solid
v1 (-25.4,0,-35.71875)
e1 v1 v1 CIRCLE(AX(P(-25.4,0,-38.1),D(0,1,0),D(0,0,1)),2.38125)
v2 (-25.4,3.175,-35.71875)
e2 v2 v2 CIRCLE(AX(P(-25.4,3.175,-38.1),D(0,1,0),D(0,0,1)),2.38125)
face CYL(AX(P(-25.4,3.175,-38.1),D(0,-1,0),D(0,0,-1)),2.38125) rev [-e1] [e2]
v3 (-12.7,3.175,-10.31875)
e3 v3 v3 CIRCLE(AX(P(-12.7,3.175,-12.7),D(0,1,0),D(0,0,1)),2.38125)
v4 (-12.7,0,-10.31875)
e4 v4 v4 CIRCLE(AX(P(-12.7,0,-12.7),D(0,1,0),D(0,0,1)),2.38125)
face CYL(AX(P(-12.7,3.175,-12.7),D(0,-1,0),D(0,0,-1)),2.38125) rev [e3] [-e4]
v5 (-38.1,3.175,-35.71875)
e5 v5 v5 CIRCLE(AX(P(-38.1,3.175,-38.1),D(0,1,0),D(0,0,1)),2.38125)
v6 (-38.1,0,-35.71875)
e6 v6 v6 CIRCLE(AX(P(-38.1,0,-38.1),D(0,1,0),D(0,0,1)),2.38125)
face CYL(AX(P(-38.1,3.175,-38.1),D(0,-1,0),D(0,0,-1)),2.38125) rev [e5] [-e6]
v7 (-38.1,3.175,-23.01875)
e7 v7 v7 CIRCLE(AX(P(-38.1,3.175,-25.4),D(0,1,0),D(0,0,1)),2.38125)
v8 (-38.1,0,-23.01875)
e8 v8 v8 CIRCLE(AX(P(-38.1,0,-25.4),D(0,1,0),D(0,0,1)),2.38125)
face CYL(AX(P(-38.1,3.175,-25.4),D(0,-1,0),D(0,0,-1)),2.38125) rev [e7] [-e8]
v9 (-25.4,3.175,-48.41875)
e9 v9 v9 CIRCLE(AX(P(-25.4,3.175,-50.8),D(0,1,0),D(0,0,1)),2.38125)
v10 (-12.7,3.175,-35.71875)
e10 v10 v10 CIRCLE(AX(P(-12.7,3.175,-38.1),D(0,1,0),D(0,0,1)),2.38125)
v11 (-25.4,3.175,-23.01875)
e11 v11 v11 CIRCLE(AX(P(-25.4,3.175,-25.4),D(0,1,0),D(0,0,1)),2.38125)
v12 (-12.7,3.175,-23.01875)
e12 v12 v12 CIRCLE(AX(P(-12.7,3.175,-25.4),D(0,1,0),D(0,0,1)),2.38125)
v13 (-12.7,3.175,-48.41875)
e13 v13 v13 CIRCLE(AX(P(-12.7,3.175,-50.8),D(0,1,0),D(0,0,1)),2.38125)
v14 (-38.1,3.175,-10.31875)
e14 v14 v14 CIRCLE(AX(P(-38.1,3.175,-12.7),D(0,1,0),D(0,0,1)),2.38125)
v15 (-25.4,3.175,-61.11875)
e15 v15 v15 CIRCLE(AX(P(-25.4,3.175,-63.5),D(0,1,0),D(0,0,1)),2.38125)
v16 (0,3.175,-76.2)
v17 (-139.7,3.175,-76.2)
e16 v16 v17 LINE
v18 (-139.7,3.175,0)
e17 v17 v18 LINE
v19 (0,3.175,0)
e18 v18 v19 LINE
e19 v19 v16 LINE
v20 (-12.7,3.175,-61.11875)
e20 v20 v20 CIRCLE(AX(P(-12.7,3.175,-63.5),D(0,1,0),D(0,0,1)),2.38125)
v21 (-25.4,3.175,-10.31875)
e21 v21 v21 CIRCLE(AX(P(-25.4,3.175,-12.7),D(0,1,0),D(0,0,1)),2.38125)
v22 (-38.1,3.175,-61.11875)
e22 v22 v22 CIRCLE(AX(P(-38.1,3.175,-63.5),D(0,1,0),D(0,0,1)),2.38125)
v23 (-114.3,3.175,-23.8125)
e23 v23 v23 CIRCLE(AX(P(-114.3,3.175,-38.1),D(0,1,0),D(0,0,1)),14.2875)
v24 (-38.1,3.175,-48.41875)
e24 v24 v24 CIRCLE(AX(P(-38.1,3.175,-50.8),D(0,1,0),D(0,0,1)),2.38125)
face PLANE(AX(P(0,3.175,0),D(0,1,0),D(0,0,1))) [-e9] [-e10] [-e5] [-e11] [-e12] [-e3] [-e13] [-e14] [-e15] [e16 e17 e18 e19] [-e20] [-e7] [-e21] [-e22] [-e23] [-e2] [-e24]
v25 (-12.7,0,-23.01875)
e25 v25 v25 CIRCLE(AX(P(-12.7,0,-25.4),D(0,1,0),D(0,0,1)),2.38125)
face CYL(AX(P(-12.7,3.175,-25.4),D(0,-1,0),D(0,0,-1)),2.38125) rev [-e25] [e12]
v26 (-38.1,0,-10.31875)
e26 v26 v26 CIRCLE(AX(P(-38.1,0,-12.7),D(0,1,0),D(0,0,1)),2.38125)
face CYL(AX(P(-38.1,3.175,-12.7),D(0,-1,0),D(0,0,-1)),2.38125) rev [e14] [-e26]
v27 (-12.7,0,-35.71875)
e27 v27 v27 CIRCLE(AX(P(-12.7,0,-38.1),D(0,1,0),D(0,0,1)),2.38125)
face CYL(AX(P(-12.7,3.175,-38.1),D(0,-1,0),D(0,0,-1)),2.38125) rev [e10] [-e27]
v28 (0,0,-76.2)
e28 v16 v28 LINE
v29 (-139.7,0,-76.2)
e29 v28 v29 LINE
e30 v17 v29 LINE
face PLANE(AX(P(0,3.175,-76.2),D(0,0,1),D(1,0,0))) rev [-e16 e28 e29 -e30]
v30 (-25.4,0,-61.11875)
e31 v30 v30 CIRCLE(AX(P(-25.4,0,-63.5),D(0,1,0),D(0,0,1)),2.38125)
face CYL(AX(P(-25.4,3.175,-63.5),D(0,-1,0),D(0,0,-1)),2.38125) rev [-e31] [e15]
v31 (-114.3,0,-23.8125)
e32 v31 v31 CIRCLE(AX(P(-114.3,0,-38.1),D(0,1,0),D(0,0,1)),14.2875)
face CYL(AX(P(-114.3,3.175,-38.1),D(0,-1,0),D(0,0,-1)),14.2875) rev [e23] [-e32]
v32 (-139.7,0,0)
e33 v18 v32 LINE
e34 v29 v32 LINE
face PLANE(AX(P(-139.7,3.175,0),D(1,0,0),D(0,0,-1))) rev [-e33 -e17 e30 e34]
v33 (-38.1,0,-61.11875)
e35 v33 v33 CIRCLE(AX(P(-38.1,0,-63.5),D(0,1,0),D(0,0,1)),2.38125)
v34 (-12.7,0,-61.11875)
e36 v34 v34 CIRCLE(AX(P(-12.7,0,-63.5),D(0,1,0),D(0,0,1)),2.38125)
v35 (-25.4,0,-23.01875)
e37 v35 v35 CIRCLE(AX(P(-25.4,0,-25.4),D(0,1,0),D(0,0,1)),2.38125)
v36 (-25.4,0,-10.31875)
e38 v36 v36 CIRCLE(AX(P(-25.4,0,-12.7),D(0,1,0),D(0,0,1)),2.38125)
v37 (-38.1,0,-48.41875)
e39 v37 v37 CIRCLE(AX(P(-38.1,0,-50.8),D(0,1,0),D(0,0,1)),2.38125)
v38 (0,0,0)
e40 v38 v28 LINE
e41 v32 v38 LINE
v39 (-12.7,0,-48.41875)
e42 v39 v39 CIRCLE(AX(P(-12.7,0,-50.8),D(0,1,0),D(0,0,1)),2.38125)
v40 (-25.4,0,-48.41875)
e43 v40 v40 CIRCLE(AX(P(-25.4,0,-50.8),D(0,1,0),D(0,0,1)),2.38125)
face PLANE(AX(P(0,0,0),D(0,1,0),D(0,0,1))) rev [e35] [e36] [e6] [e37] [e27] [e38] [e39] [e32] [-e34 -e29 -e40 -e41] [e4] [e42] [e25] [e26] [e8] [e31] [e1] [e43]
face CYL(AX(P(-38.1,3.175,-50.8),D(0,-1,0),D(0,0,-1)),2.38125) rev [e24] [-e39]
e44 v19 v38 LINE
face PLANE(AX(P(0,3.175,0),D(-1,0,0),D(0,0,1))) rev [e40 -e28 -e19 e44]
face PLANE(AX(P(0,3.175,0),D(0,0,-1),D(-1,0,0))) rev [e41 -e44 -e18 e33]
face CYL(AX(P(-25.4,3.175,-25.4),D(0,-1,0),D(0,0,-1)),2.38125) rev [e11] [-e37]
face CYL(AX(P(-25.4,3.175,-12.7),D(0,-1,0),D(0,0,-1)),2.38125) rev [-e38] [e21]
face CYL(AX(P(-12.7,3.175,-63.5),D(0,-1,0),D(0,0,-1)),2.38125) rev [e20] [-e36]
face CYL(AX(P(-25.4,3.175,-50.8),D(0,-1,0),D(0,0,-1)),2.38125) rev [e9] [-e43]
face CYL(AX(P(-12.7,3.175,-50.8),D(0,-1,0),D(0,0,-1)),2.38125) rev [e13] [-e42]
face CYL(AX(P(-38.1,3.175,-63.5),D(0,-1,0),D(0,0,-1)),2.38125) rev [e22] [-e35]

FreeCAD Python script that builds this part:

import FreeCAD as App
import Part
import Sketcher
Q = App.Units.Quantity

doc = App.newDocument("Part")
body = doc.addObject("PartDesign::Body", "Body")

sketch1 = doc.addObject("Sketcher::SketchObject", "Sketch")
body.addObject(sketch1)
sketch1.AttachmentSupport = (doc.XZ_Plane, [""])
sketch1.MapMode = "FlatFace"
sketch1.addGeometry([
    Part.LineSegment(App.Vector(-139.7, -76.2, 0), App.Vector(-139.7, 0, 0)),
    Part.LineSegment(App.Vector(-139.7, 0, 0), App.Vector(0, 0, 0)),
    Part.LineSegment(App.Vector(0, 0, 0), App.Vector(0, -76.2, 0)),
    Part.LineSegment(App.Vector(0, -76.2, 0), App.Vector(-139.7, -76.2, 0)),
    Part.Circle(App.Vector(-38.1, -12.7, 0), App.Vector(0, 0, 1), 2.4),
    Part.Circle(App.Vector(-25.4, -12.7, 0), App.Vector(0, 0, 1), 2.4),
    Part.Circle(App.Vector(-12.7, -12.7, 0), App.Vector(0, 0, 1), 2.4),
    Part.Circle(App.Vector(-38.1, -25.4, 0), App.Vector(0, 0, 1), 2.4),
    Part.Circle(App.Vector(-25.4, -25.4, 0), App.Vector(0, 0, 1), 2.4),
    Part.Circle(App.Vector(-12.7, -25.4, 0), App.Vector(0, 0, 1), 2.4),
    Part.Circle(App.Vector(-114.3, -38.1, 0), App.Vector(0, 0, 1), 14.3),
    Part.Circle(App.Vector(-38.1, -38.1, 0), App.Vector(0, 0, 1), 2.4),
    Part.Circle(App.Vector(-25.4, -38.1, 0), App.Vector(0, 0, 1), 2.4),
    Part.Circle(App.Vector(-12.7, -38.1, 0), App.Vector(0, 0, 1), 2.4),
    Part.Circle(App.Vector(-38.1, -50.8, 0), App.Vector(0, 0, 1), 2.4),
    Part.Circle(App.Vector(-25.4, -50.8, 0), App.Vector(0, 0, 1), 2.4),
    Part.Circle(App.Vector(-12.7, -50.8, 0), App.Vector(0, 0, 1), 2.4),
    Part.Circle(App.Vector(-38.1, -63.5, 0), App.Vector(0, 0, 1), 2.4),
    Part.Circle(App.Vector(-25.4, -63.5, 0), App.Vector(0, 0, 1), 2.4),
    Part.Circle(App.Vector(-12.7, -63.5, 0), App.Vector(0, 0, 1), 2.4),
], False)
sketch1.addConstraint([
    Sketcher.Constraint("Coincident", 0, 2, 1, 1),
    Sketcher.Constraint("Coincident", 1, 2, 2, 1),
    Sketcher.Constraint("Coincident", 2, 2, 3, 1),
    Sketcher.Constraint("Coincident", 3, 2, 0, 1),
    Sketcher.Constraint("Vertical", 0),
    Sketcher.Constraint("Horizontal", 1),
    Sketcher.Constraint("Vertical", 2),
    Sketcher.Constraint("Horizontal", 3),
    Sketcher.Constraint("Coincident", 1, 2, -1, 1),
    Sketcher.Constraint("Equal", 4, 5),
    Sketcher.Constraint("Equal", 5, 6),
    Sketcher.Constraint("Equal", 6, 7),
    Sketcher.Constraint("Equal", 7, 8),
    Sketcher.Constraint("Equal", 8, 9),
    Sketcher.Constraint("Equal", 9, 11),
    Sketcher.Constraint("Equal", 11, 12),
    Sketcher.Constraint("Equal", 12, 13),
    Sketcher.Constraint("Equal", 13, 14),
    Sketcher.Constraint("Equal", 14, 15),
    Sketcher.Constraint("Equal", 15, 16),
    Sketcher.Constraint("Equal", 16, 17),
    Sketcher.Constraint("Equal", 17, 18),
    Sketcher.Constraint("Equal", 18, 19),
    Sketcher.Constraint("Horizontal", 4, 3, 5, 3),
    Sketcher.Constraint("Horizontal", 5, 3, 6, 3),
    Sketcher.Constraint("Horizontal", 7, 3, 8, 3),
    Sketcher.Constraint("Horizontal", 8, 3, 9, 3),
    Sketcher.Constraint("Horizontal", 10, 3, 11, 3),
    Sketcher.Constraint("Horizontal", 11, 3, 12, 3),
    Sketcher.Constraint("Horizontal", 12, 3, 13, 3),
    Sketcher.Constraint("Horizontal", 14, 3, 15, 3),
    Sketcher.Constraint("Horizontal", 15, 3, 16, 3),
    Sketcher.Constraint("Horizontal", 17, 3, 18, 3),
    Sketcher.Constraint("Horizontal", 18, 3, 19, 3),
    Sketcher.Constraint("Vertical", 4, 3, 7, 3),
    Sketcher.Constraint("Vertical", 5, 3, 8, 3),
    Sketcher.Constraint("Vertical", 6, 3, 9, 3),
    Sketcher.Constraint("Vertical", 7, 3, 11, 3),
    Sketcher.Constraint("Vertical", 8, 3, 12, 3),
    Sketcher.Constraint("Vertical", 9, 3, 13, 3),
    Sketcher.Constraint("Vertical", 11, 3, 14, 3),
    Sketcher.Constraint("Vertical", 12, 3, 15, 3),
    Sketcher.Constraint("Vertical", 13, 3, 16, 3),
    Sketcher.Constraint("Vertical", 14, 3, 17, 3),
    Sketcher.Constraint("Vertical", 15, 3, 18, 3),
    Sketcher.Constraint("Vertical", 16, 3, 19, 3),
    Sketcher.Constraint("DistanceY", 0, 1, 0, 2, Q("3 in")),
    Sketcher.Constraint("Diameter", 4, Q("0.1875 in")),
    Sketcher.Constraint("Diameter", 10, Q("1.125 in")),
    Sketcher.Constraint("DistanceX", 1, 1, 1, 2, Q("5.5 in")),
    Sketcher.Constraint("DistanceX", 5, 3, -1, 1, Q("1 in")),
    Sketcher.Constraint("DistanceY", 7, 3, -1, 1, Q("1 in")),
    Sketcher.Constraint("DistanceY", 14, 3, -1, 1, Q("2 in")),
    Sketcher.Constraint("DistanceX", 4, 3, 6, 3, Q("1 in")),
    Sketcher.Constraint("DistanceX", 10, 3, 7, 3, Q("3 in")),
    Sketcher.Constraint("DistanceY", 10, 3, 4, 3, Q("1 in")),
    Sketcher.Constraint("DistanceY", 17, 3, 11, 3, Q("1 in")),
    Sketcher.Constraint("DistanceX", 0, 2, 10, 3, Q("1 in")),
    Sketcher.Constraint("DistanceY", 4, 3, -1, 1, Q("0.5 in")),
])
pad1 = doc.addObject("PartDesign::Pad", "Pad")
body.addObject(pad1)
pad1.Profile = sketch1
pad1.Length = Q("0.125 in")
pad1.Reversed = True

doc.recompute()
